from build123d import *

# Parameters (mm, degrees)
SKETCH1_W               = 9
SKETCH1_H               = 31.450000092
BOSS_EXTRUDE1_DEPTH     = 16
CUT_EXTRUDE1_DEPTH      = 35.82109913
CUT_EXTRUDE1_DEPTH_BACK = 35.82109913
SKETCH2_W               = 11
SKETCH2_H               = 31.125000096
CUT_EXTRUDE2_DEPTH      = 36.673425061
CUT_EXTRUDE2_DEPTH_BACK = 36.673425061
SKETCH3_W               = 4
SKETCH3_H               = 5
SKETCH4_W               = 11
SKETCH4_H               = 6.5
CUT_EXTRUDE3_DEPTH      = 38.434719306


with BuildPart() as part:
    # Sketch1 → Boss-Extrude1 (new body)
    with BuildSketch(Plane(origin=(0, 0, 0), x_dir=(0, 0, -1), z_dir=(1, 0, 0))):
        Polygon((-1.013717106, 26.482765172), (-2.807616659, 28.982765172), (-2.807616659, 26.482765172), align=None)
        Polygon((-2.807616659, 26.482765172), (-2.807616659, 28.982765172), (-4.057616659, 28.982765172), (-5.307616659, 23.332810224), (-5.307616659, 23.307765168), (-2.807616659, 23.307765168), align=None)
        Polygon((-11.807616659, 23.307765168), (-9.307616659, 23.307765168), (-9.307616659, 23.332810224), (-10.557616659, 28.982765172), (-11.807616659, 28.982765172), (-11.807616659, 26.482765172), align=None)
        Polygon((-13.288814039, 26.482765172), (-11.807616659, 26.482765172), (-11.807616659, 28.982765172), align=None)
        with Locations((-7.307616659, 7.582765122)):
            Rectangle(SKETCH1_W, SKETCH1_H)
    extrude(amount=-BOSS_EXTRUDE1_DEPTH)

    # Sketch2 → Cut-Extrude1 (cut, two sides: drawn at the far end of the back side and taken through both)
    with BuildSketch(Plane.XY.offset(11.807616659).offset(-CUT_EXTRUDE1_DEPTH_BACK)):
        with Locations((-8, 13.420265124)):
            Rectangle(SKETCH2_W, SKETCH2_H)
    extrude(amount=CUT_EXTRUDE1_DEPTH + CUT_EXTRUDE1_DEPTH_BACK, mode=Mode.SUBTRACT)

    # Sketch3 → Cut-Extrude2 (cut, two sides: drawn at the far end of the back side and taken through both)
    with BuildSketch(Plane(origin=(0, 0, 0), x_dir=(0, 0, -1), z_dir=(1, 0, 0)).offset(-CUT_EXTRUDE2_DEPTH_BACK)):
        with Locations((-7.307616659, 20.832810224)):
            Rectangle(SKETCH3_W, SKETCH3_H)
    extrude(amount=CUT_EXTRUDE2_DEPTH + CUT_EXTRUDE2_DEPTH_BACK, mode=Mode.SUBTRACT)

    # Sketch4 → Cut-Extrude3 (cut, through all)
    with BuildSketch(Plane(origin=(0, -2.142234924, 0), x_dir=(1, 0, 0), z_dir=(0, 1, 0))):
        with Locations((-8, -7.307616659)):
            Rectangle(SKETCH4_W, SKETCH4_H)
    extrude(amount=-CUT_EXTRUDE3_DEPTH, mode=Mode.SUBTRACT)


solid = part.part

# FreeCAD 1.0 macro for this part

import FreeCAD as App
import Part
import Sketcher
Q = App.Units.Quantity


def add_polygon(sketch, points):
    """Adds a closed chain of lines whose ends are joined by coincident constraints."""
    first, n = sketch.GeometryCount, len(points)
    for a, b in zip(points, points[1:] + points[:1]):
        sketch.addGeometry(Part.LineSegment(App.Vector(*a, 0), App.Vector(*b, 0)), False)
    for i in range(n):
        sketch.addConstraint(Sketcher.Constraint("Coincident", first + i, 2, first + (i + 1) % n, 1))

doc = App.newDocument("Part")
params = doc.addObject("Spreadsheet::Sheet", "Params")
for row, (alias, value) in enumerate([
    ("sketch1_height", "4 mm"),
    ("sketch1_height2", "9 mm"),
    ("sketch1_height3", "1.25 mm"),
    ("pad1_length", "16 mm"),
    ("sketch2_width", "11 mm"),
    ("sketch3_width", "5 mm"),
    ("sketch3_height", "4 mm"),
    ("sketch4_width", "11 mm"),
    ("sketch4_height", "6.5 mm"),
], start=1):
    params.set(f"A{row}", alias)
    params.set(f"B{row}", "=" + value)
    params.setAlias(f"B{row}", alias)

body = doc.addObject("PartDesign::Body", "Body")

sketch1 = body.newObject("Sketcher::SketchObject", "Sketch")
sketch1.AttachmentSupport = (doc.getObject("YZ_Plane"), [""])
sketch1.MapMode = "FlatFace"
add_polygon(sketch1, [(26.482765, 1.013717), (28.982765, 2.807617), (28.982765, 4.057617), (23.33281, 5.307617), (23.307765, 5.307617), (23.307765, 9.307617), (23.33281, 9.307617), (28.982765, 10.557617), (28.982765, 11.807617), (26.482765, 13.288814), (26.482765, 11.807617), (-8.142235, 11.807617), (-8.142235, 2.807617), (26.482765, 2.807617)])
sketch1.addConstraint([
    Sketcher.Constraint("Vertical", 1),
    Sketcher.Constraint("Horizontal", 3),
    Sketcher.Constraint("Vertical", 4),
    Sketcher.Constraint("Horizontal", 5),
    Sketcher.Constraint("Vertical", 7),
    Sketcher.Constraint("Vertical", 9),
    Sketcher.Constraint("Horizontal", 10),
    Sketcher.Constraint("Vertical", 11),
    Sketcher.Constraint("Horizontal", 12),
    Sketcher.Constraint("Vertical", 13),
    Sketcher.Constraint("Horizontal", 7, 2, 9, 2),
    Sketcher.Constraint("Horizontal", 0, 2, 11, 2),
    Sketcher.Constraint("Vertical", 2, 2, 5, 2),
    Sketcher.Constraint("Vertical", 1, 2, 6, 2),
    Sketcher.Constraint("Vertical", 9, 2, 12, 2),
    Sketcher.Constraint("Equal", 1, 7),
    Sketcher.Constraint("Equal", 2, 6),
    Sketcher.Constraint("DistanceY", 4, 1, 4, 2, Q("4 mm")),
    Sketcher.Constraint("DistanceY", 11, 2, 11, 1, Q("9 mm")),
    Sketcher.Constraint("DistanceY", 1, 1, 1, 2, Q("1.25 mm")),
    Sketcher.Constraint("DistanceX", 8, 2, 7, 2, Q("2.5 mm")),
    Sketcher.Constraint("DistanceX", 10, 2, 10, 1, Q("34.625 mm")),
    Sketcher.Constraint("DistanceX", 10, 2, 4, 2, Q("31.45 mm")),
    Sketcher.Constraint("DistanceY", 13, 2, 13, 1, Q("1.7939 mm")),
    Sketcher.Constraint("Distance", 2, Q("5.786579 mm")),
    Sketcher.Constraint("DistanceY", 9, 2, 9, 1, Q("1.481197 mm")),
    Sketcher.Constraint("DistanceX", -1, 1, 2, 2, Q("23.33281 mm")),
    Sketcher.Constraint("DistanceY", -1, 1, 0, 2, Q("2.807617 mm")),
])
sketch1.setExpression("Constraints[31]", "Params.sketch1_height")
sketch1.setExpression("Constraints[32]", "Params.sketch1_height2")
sketch1.setExpression("Constraints[33]", "Params.sketch1_height3")
pad1 = body.newObject("PartDesign::Pad", "Pad")
pad1.Profile = sketch1
pad1.setExpression("Length", "Params.pad1_length")
pad1.Reversed = True

sketch2 = body.newObject("Sketcher::SketchObject", "Sketch001")
sketch2.AttachmentSupport = (doc.getObject("XY_Plane"), [""])
sketch2.MapMode = "FlatFace"
sketch2.AttachmentOffset = App.Placement(App.Vector(0, 0, 11.807617), App.Rotation())
add_polygon(sketch2, [(-13.5, 28.982765), (-13.5, -2.142235), (-2.5, -2.142235), (-2.5, 28.982765)])
sketch2.addConstraint([
    Sketcher.Constraint("Vertical", 0),
    Sketcher.Constraint("Horizontal", 1),
    Sketcher.Constraint("Vertical", 2),
    Sketcher.Constraint("Horizontal", 3),
    Sketcher.Constraint("DistanceX", 1, 1, 1, 2, Q("11 mm")),
    Sketcher.Constraint("DistanceX", 0, 2, -1, 1, Q("13.5 mm")),
    Sketcher.Constraint("DistanceY", 0, 2, 0, 1, Q("31.125 mm")),
    Sketcher.Constraint("DistanceY", 0, 2, -1, 1, Q("2.142235 mm")),
])
sketch2.setExpression("Constraints[8]", "Params.sketch2_width")
pocket1 = body.newObject("PartDesign::Pocket", "Pocket")
pocket1.Profile = sketch2
pocket1.Type = "ThroughAll"
pocket1.Midplane = True

sketch3 = body.newObject("Sketcher::SketchObject", "Sketch002")
sketch3.AttachmentSupport = (doc.getObject("YZ_Plane"), [""])
sketch3.MapMode = "FlatFace"
add_polygon(sketch3, [(23.33281, 9.307617), (18.33281, 9.307617), (18.33281, 5.307617), (23.33281, 5.307617)])
sketch3.addConstraint([
    Sketcher.Constraint("Horizontal", 0),
    Sketcher.Constraint("Vertical", 1),
    Sketcher.Constraint("Horizontal", 2),
    Sketcher.Constraint("Vertical", 3),
    Sketcher.Constraint("DistanceX", 0, 2, 0, 1, Q("5 mm")),
    Sketcher.Constraint("DistanceY", 1, 2, 1, 1, Q("4 mm")),
    Sketcher.Constraint("DistanceX", -1, 1, 0, 2, Q("18.33281 mm")),
    Sketcher.Constraint("DistanceY", -1, 1, 0, 2, Q("9.307617 mm")),
])
sketch3.setExpression("Constraints[8]", "Params.sketch3_width")
sketch3.setExpression("Constraints[9]", "Params.sketch3_height")
pocket2 = body.newObject("PartDesign::Pocket", "Pocket001")
pocket2.Profile = sketch3
pocket2.Type = "ThroughAll"
pocket2.Midplane = True

sketch4 = body.newObject("Sketcher::SketchObject", "Sketch003")
sketch4.AttachmentSupport = (doc.getObject("XZ_Plane"), [""])
sketch4.MapMode = "FlatFace"
sketch4.AttachmentOffset = App.Placement(App.Vector(0, 0, 2.142235), App.Rotation())
add_polygon(sketch4, [(-13.5, 4.057617), (-13.5, 10.557617), (-2.5, 10.557617), (-2.5, 4.057617)])
sketch4.addConstraint([
    Sketcher.Constraint("Vertical", 0),
    Sketcher.Constraint("Horizontal", 1),
    Sketcher.Constraint("Vertical", 2),
    Sketcher.Constraint("Horizontal", 3),
    Sketcher.Constraint("DistanceX", 1, 1, 1, 2, Q("11 mm")),
    Sketcher.Constraint("DistanceY", 0, 1, 0, 2, Q("6.5 mm")),
    Sketcher.Constraint("DistanceX", 0, 2, -1, 1, Q("13.5 mm")),
    Sketcher.Constraint("DistanceY", -1, 1, 0, 2, Q("10.557617 mm")),
])
sketch4.setExpression("Constraints[8]", "Params.sketch4_width")
sketch4.setExpression("Constraints[9]", "Params.sketch4_height")
pocket3 = body.newObject("PartDesign::Pocket", "Pocket002")
pocket3.Profile = sketch4
pocket3.Type = "ThroughAll"
pocket3.Reversed = True

doc.recompute()
